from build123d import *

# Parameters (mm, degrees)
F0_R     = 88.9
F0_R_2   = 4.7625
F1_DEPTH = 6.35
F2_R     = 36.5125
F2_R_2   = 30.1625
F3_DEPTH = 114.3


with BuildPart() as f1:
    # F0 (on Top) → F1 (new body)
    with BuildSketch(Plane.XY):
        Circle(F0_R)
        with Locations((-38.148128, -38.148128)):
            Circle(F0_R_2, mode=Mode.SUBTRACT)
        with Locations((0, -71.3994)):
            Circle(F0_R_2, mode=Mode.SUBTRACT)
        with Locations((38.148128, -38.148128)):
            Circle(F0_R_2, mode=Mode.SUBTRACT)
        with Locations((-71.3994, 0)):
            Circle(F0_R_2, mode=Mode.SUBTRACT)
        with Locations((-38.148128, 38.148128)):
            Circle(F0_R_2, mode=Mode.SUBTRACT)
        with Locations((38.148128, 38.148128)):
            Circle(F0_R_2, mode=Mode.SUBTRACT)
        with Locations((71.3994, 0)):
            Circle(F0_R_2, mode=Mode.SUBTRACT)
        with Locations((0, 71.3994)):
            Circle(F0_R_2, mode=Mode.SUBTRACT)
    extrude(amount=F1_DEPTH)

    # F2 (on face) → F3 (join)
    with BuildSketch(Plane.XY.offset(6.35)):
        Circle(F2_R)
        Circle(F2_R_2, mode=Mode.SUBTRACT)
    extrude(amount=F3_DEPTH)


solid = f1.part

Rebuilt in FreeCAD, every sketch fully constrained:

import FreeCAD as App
import Part
import Sketcher
from FreeCAD import Vector
Q = App.Units.Quantity

doc = App.newDocument("Part")
body = doc.addObject("PartDesign::Body", "Body")

sketch1 = body.newObject("Sketcher::SketchObject", "Sketch")
sketch1.AttachmentSupport = (doc.getObject("XY_Plane"), [""])
sketch1.MapMode = "FlatFace"
sketch1.addGeometry(Part.Circle(Vector(0, 0, 0), Vector(0, 0, 1), 88.9), False)
sketch1.addGeometry(Part.Circle(Vector(-38.1, -38.1, 0), Vector(0, 0, 1), 4.8), False)
sketch1.addGeometry(Part.Circle(Vector(0, -71.4, 0), Vector(0, 0, 1), 4.8), False)
sketch1.addGeometry(Part.Circle(Vector(38.1, -38.1, 0), Vector(0, 0, 1), 4.8), False)
sketch1.addGeometry(Part.Circle(Vector(-71.4, 0, 0), Vector(0, 0, 1), 4.8), False)
sketch1.addGeometry(Part.Circle(Vector(-38.1, 38.1, 0), Vector(0, 0, 1), 4.8), False)
sketch1.addGeometry(Part.Circle(Vector(71.4, 0, 0), Vector(0, 0, 1), 4.8), False)
sketch1.addGeometry(Part.Circle(Vector(0, 71.4, 0), Vector(0, 0, 1), 4.8), False)
sketch1.addGeometry(Part.Circle(Vector(38.1, 38.1, 0), Vector(0, 0, 1), 4.8), False)
sketch1.addConstraint(Sketcher.Constraint("Coincident", 0, 3, -1, 1))
sketch1.addConstraint(Sketcher.Constraint("Equal", 1, 2))
sketch1.addConstraint(Sketcher.Constraint("Equal", 2, 3))
sketch1.addConstraint(Sketcher.Constraint("Equal", 3, 4))
sketch1.addConstraint(Sketcher.Constraint("Equal", 4, 5))
sketch1.addConstraint(Sketcher.Constraint("Equal", 5, 6))
sketch1.addConstraint(Sketcher.Constraint("Equal", 6, 7))
sketch1.addConstraint(Sketcher.Constraint("Equal", 7, 8))
sketch1.addConstraint(Sketcher.Constraint("Symmetric", 3, 3, 5, 3, -1, 1))
sketch1.addConstraint(Sketcher.Constraint("Symmetric", 4, 3, 6, 3, -1, 1))
sketch1.addConstraint(Sketcher.Constraint("Symmetric", 2, 3, 7, 3, -1, 1))
sketch1.addConstraint(Sketcher.Constraint("Symmetric", 1, 3, 8, 3, -1, 1))
sketch1.addConstraint(Sketcher.Constraint("Symmetric", 1, 3, 3, 3, -2))
sketch1.addConstraint(Sketcher.Constraint("PointOnObject", 2, 3, -2))
sketch1.addConstraint(Sketcher.Constraint("PointOnObject", 4, 3, -1))
sketch1.addConstraint(Sketcher.Constraint("Diameter", 0, Q("7 in")))
sketch1.addConstraint(Sketcher.Constraint("Diameter", 1, Q("0.375 in")))
sketch1.addConstraint(Sketcher.Constraint("DistanceY", 2, 3, -1, 1, Q("2.811 in")))
sketch1.addConstraint(Sketcher.Constraint("DistanceX", 4, 3, -1, 1, Q("2.811 in")))
sketch1.addConstraint(Sketcher.Constraint("DistanceX", 4, 3, 3, 3, Q("109.547528 mm")))
sketch1.addConstraint(Sketcher.Constraint("DistanceY", 2, 3, 5, 3, Q("109.547528 mm")))
pad1 = body.newObject("PartDesign::Pad", "Pad")
pad1.Profile = sketch1
pad1.Length = Q("0.25 in")

sketch2 = body.newObject("Sketcher::SketchObject", "Sketch001")
sketch2.AttachmentSupport = (doc.getObject("XY_Plane"), [""])
sketch2.MapMode = "FlatFace"
sketch2.AttachmentOffset = App.Placement(Vector(0, 0, 0.25 * 25.4), App.Rotation())
sketch2.addGeometry(Part.Circle(Vector(0, 0, 0), Vector(0, 0, 1), 37), False)
sketch2.addGeometry(Part.Circle(Vector(0, 0, 0), Vector(0, 0, 1), 30), False)
sketch2.addConstraint(Sketcher.Constraint("Coincident", 0, 3, -1, 1))
sketch2.addConstraint(Sketcher.Constraint("Coincident", 1, 3, -1, 1))
sketch2.addConstraint(Sketcher.Constraint("Diameter", 0, Q("2.875 in")))
sketch2.addConstraint(Sketcher.Constraint("Diameter", 1, Q("2.375 in")))
pad2 = body.newObject("PartDesign::Pad", "Pad001")
pad2.Profile = sketch2
pad2.Length = Q("4.5 in")

doc.recompute()
